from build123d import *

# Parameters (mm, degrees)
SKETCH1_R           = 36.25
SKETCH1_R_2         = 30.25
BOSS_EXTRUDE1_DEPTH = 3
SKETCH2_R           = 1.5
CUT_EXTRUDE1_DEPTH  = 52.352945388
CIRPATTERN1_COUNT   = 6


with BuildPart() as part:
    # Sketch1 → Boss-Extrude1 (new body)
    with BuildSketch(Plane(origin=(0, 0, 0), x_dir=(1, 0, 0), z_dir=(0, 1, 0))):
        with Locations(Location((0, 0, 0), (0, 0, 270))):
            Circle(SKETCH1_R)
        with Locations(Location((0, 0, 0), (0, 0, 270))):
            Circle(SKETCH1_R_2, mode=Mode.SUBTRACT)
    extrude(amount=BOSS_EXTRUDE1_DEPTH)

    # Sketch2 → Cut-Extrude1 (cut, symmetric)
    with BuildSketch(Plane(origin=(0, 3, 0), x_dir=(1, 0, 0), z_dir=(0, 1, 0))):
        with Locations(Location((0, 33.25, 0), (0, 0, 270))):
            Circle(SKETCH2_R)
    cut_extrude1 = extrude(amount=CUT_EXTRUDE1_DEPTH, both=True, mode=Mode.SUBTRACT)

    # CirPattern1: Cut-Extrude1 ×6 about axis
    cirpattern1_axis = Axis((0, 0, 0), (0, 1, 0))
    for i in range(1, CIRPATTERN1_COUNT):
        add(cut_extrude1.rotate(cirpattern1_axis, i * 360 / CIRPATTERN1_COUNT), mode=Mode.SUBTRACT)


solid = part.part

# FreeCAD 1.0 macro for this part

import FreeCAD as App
import Part
import Sketcher
Q = App.Units.Quantity

doc = App.newDocument("Part")
body = doc.addObject("PartDesign::Body", "Body")

# Sketch on XZ plane
sketch1 = doc.addObject("Sketcher::SketchObject", "Sketch")
body.addObject(sketch1)
sketch1.AttachmentSupport = (doc.XZ_Plane, [""])
sketch1.MapMode = "FlatFace"
sketch1.addGeometry([
    Part.Circle(App.Vector(0, 0, 0), App.Vector(0, 0, 1), 36.25),
    Part.Circle(App.Vector(0, 0, 0), App.Vector(0, 0, 1), 30.25),
], False)
sketch1.addConstraint([
    Sketcher.Constraint("Coincident", 0, 3, -1, 1),
    Sketcher.Constraint("Coincident", 1, 3, -1, 1),
    Sketcher.Constraint("Diameter", 0, Q("72.5 mm")),
    Sketcher.Constraint("Diameter", 1, Q("60.5 mm")),
])
pad1 = doc.addObject("PartDesign::Pad", "Pad")
body.addObject(pad1)
pad1.Profile = sketch1
pad1.Length = 3
pad1.Reversed = True

# Sketch on XZ plane
sketch2 = doc.addObject("Sketcher::SketchObject", "Sketch001")
body.addObject(sketch2)
sketch2.AttachmentSupport = (doc.XZ_Plane, [""])
sketch2.MapMode = "FlatFace"
sketch2.AttachmentOffset = App.Placement(App.Vector(0, 0, -3), App.Rotation())
sketch2.addGeometry(Part.Circle(App.Vector(0, -33.25, 0), App.Vector(0, 0, 1), 1.5), False)
sketch2.addConstraint([
    Sketcher.Constraint("PointOnObject", 0, 3, -2),
    Sketcher.Constraint("Diameter", 0, Q("3 mm")),
    Sketcher.Constraint("DistanceY", 0, 3, -1, 1, Q("33.25 mm")),
])
pocket1 = doc.addObject("PartDesign::Pocket", "Pocket")
body.addObject(pocket1)
pocket1.Profile = sketch2
pocket1.Length = 104.705891
pocket1.Midplane = True
doc.recompute()

polarpattern = doc.addObject("PartDesign::PolarPattern", "PolarPattern")
body.addObject(polarpattern)
polarpattern.Originals = [pocket1]
polarpattern.Axis = (doc.Y_Axis, [""])
polarpattern.Angle = 360
polarpattern.Occurrences = 6
body.Tip = polarpattern

doc.recompute()
